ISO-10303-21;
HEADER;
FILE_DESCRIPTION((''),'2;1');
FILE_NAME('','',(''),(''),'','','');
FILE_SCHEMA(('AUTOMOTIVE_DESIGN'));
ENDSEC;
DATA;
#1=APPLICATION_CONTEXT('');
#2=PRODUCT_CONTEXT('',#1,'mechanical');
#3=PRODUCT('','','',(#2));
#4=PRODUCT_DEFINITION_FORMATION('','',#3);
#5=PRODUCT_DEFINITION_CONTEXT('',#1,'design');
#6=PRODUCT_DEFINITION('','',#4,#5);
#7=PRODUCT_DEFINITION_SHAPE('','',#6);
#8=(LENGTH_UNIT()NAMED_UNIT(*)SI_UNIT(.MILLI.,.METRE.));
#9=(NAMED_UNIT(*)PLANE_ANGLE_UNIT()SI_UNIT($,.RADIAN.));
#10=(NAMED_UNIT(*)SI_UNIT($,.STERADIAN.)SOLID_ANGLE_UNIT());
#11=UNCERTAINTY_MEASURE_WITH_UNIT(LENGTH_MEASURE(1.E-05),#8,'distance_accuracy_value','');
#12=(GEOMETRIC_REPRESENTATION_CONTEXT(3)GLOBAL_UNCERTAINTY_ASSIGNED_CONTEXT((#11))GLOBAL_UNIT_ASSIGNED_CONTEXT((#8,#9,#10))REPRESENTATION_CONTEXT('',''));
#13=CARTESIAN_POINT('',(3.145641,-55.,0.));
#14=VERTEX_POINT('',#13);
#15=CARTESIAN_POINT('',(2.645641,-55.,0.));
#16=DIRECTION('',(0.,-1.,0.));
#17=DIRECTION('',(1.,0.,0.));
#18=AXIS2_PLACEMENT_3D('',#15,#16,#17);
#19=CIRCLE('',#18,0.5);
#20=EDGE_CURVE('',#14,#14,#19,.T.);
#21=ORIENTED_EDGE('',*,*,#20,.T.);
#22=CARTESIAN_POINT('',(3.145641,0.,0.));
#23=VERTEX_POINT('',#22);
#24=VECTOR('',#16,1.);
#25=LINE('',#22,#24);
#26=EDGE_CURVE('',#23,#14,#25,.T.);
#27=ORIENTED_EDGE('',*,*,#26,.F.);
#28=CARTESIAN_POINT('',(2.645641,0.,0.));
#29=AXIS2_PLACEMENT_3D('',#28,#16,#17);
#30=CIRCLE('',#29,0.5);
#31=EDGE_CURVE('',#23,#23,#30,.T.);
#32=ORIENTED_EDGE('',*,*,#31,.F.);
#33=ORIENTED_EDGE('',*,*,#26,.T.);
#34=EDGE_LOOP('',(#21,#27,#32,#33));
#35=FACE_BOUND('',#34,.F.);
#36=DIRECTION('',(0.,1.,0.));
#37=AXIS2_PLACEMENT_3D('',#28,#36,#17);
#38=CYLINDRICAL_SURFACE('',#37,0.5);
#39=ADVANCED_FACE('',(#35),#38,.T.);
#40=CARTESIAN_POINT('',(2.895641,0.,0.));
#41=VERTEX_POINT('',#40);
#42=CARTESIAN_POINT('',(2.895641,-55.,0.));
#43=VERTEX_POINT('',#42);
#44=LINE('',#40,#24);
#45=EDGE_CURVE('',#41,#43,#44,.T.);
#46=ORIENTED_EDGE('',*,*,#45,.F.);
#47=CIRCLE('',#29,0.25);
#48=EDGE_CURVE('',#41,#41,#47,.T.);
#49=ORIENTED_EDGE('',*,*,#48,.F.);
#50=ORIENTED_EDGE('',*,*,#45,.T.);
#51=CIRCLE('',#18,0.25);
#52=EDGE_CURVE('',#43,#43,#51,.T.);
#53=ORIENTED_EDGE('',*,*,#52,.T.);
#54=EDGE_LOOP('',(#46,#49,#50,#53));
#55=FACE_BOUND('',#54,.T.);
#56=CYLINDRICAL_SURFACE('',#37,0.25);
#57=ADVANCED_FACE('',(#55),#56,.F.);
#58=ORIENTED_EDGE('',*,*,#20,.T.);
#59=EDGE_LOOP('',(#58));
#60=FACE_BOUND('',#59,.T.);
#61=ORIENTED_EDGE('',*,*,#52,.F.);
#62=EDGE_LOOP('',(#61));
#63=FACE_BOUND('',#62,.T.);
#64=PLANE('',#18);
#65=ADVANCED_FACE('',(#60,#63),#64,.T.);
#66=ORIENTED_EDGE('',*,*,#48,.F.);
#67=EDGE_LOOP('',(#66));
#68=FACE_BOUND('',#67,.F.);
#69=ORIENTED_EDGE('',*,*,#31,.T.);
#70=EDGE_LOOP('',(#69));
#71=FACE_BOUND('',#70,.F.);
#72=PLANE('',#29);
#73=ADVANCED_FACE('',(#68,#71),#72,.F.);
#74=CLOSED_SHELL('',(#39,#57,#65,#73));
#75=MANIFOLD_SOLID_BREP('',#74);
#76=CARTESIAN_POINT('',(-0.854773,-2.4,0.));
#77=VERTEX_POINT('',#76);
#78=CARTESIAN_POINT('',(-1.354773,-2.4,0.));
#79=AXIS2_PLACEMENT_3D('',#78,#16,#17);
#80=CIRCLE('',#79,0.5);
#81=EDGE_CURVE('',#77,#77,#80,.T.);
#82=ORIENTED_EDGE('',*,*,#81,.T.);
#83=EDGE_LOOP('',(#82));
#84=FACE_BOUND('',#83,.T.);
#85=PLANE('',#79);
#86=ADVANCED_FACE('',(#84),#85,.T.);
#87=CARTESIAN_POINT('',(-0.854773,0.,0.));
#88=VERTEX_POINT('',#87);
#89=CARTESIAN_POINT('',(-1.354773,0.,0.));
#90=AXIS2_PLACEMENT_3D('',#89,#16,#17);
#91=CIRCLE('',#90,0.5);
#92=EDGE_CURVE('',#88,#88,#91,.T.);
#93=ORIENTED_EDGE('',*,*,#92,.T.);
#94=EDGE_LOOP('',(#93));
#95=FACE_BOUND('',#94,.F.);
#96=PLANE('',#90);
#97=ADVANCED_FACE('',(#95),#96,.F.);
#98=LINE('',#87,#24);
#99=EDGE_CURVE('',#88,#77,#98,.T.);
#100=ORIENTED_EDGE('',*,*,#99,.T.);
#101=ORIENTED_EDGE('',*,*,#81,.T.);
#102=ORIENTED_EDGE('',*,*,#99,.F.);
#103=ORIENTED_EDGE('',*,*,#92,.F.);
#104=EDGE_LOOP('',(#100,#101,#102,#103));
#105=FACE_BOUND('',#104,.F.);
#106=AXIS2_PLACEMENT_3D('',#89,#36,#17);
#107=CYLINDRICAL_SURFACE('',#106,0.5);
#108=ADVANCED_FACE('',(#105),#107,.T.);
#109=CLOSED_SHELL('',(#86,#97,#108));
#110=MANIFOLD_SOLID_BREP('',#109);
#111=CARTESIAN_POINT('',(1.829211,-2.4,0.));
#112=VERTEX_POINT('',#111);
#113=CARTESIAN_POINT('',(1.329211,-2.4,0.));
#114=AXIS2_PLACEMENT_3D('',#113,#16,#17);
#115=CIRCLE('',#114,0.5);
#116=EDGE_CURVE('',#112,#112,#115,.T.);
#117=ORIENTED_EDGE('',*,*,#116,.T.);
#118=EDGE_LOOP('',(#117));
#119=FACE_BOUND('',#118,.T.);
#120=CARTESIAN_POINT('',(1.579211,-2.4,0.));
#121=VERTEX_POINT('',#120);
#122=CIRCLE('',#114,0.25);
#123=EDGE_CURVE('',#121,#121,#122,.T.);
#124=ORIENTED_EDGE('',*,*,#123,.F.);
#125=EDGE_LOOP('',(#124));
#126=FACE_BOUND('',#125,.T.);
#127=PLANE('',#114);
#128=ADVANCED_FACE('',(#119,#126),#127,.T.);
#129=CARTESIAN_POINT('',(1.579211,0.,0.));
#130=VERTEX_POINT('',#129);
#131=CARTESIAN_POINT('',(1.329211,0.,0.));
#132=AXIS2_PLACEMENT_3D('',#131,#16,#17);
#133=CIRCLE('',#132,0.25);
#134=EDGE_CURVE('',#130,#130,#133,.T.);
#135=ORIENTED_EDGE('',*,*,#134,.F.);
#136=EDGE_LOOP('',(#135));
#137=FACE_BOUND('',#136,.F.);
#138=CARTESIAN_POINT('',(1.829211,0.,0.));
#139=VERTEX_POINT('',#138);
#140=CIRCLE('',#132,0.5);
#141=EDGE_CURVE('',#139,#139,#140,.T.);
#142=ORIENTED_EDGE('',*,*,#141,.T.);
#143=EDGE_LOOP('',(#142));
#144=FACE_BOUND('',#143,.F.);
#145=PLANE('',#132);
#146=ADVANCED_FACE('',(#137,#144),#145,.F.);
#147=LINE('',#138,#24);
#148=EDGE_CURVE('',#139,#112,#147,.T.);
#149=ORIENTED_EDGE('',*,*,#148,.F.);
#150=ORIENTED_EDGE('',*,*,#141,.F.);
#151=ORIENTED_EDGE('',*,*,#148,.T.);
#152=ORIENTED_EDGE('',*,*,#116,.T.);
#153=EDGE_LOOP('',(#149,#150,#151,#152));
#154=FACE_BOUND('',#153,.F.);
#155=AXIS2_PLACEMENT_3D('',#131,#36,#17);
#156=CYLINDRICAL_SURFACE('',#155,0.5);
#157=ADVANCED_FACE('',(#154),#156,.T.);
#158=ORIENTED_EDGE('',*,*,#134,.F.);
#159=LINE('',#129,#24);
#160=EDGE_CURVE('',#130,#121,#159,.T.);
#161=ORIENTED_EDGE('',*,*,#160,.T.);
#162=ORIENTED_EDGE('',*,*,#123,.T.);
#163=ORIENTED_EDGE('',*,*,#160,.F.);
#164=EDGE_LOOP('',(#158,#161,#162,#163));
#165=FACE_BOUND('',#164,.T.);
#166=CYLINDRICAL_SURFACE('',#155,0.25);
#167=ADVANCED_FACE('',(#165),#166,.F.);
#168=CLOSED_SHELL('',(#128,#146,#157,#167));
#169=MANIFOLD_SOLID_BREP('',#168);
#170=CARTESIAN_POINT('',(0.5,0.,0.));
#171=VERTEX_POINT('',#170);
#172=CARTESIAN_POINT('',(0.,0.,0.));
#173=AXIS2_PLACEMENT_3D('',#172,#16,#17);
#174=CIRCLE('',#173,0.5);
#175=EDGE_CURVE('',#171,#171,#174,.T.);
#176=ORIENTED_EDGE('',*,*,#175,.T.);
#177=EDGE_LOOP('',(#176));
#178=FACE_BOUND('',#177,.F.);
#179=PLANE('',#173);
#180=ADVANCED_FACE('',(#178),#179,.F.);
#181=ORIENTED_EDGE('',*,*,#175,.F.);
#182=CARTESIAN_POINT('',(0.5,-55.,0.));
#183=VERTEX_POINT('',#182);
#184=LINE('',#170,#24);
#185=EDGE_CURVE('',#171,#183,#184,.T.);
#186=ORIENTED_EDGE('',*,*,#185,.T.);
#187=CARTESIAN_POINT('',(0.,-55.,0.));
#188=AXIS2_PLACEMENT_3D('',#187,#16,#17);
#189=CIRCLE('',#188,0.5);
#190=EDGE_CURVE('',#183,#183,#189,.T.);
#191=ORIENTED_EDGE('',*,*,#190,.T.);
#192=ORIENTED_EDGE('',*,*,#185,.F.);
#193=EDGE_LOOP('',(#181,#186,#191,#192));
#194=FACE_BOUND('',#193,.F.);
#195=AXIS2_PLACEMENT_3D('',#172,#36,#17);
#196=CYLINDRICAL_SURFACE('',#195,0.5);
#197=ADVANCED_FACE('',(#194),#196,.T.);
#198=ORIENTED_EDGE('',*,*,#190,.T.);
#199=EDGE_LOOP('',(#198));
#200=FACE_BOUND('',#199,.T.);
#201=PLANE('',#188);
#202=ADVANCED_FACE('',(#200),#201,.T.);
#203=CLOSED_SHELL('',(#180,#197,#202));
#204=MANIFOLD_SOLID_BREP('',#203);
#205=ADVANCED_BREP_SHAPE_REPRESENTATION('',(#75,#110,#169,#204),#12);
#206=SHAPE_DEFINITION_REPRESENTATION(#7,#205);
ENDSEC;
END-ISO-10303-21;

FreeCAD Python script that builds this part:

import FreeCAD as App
import Part
import Sketcher

doc = App.newDocument("Part")
body = doc.addObject("PartDesign::Body", "Body")

sketch1 = body.newObject("Sketcher::SketchObject", "Sketch")
sketch1.AttachmentSupport = (doc.getObject("XZ_Plane"), [""])
sketch1.MapMode = "FlatFace"
sketch1.addGeometry(Part.Circle(App.Vector(-1.4, 0, 0), App.Vector(0, 0, 1), 0.5), False)
sketch1.addConstraint(Sketcher.Constraint("PointOnObject", 0, 3, -1))
sketch1.addConstraint(Sketcher.Constraint("Diameter", 0, 1.0))
sketch1.addConstraint(Sketcher.Constraint("DistanceX", 0, 3, -1, 1, 1.354773))
pad1 = body.newObject("PartDesign::Pad", "Pad")
pad1.Profile = sketch1
pad1.Length = 2.4
body2 = doc.addObject("PartDesign::Body", "Body001")

sketch2 = body2.newObject("Sketcher::SketchObject", "Sketch001")
sketch2.AttachmentSupport = (doc.getObject("XZ_Plane001"), [""])
sketch2.MapMode = "FlatFace"
sketch2.addGeometry(Part.Circle(App.Vector(0, 0, 0), App.Vector(0, 0, 1), 0.5), False)
sketch2.addConstraint(Sketcher.Constraint("Coincident", 0, 3, -1, 1))
sketch2.addConstraint(Sketcher.Constraint("Diameter", 0, 1.0))
pad2 = body2.newObject("PartDesign::Pad", "Pad001")
pad2.Profile = sketch2
pad2.Length = 55
body3 = doc.addObject("PartDesign::Body", "Body002")

sketch3 = body3.newObject("Sketcher::SketchObject", "Sketch002")
sketch3.AttachmentSupport = (doc.getObject("XZ_Plane002"), [""])
sketch3.MapMode = "FlatFace"
sketch3.addGeometry(Part.Circle(App.Vector(1.33, 0, 0), App.Vector(0, 0, 1), 0.5), False)
sketch3.addGeometry(Part.Circle(App.Vector(1.33, 0, 0), App.Vector(0, 0, 1), 0.25), False)
sketch3.addConstraint(Sketcher.Constraint("Coincident", 1, 3, 0, 3))
sketch3.addConstraint(Sketcher.Constraint("PointOnObject", 0, 3, -1))
sketch3.addConstraint(Sketcher.Constraint("Diameter", 0, 1.0))
sketch3.addConstraint(Sketcher.Constraint("Diameter", 1, 0.5))
sketch3.addConstraint(Sketcher.Constraint("DistanceX", -1, 1, 0, 3, 1.329211))
pad3 = body3.newObject("PartDesign::Pad", "Pad002")
pad3.Profile = sketch3
pad3.Length = 2.4
body4 = doc.addObject("PartDesign::Body", "Body003")

sketch4 = body4.newObject("Sketcher::SketchObject", "Sketch003")
sketch4.AttachmentSupport = (doc.getObject("XZ_Plane003"), [""])
sketch4.MapMode = "FlatFace"
sketch4.addGeometry(Part.Circle(App.Vector(2.65, 0, 0), App.Vector(0, 0, 1), 0.5), False)
sketch4.addGeometry(Part.Circle(App.Vector(2.65, 0, 0), App.Vector(0, 0, 1), 0.25), False)
sketch4.addConstraint(Sketcher.Constraint("Coincident", 1, 3, 0, 3))
sketch4.addConstraint(Sketcher.Constraint("PointOnObject", 0, 3, -1))
sketch4.addConstraint(Sketcher.Constraint("Diameter", 0, 1.0))
sketch4.addConstraint(Sketcher.Constraint("Diameter", 1, 0.5))
sketch4.addConstraint(Sketcher.Constraint("DistanceX", -1, 1, 0, 3, 2.645641))
pad4 = body4.newObject("PartDesign::Pad", "Pad003")
pad4.Profile = sketch4
pad4.Length = 55

doc.recompute()
